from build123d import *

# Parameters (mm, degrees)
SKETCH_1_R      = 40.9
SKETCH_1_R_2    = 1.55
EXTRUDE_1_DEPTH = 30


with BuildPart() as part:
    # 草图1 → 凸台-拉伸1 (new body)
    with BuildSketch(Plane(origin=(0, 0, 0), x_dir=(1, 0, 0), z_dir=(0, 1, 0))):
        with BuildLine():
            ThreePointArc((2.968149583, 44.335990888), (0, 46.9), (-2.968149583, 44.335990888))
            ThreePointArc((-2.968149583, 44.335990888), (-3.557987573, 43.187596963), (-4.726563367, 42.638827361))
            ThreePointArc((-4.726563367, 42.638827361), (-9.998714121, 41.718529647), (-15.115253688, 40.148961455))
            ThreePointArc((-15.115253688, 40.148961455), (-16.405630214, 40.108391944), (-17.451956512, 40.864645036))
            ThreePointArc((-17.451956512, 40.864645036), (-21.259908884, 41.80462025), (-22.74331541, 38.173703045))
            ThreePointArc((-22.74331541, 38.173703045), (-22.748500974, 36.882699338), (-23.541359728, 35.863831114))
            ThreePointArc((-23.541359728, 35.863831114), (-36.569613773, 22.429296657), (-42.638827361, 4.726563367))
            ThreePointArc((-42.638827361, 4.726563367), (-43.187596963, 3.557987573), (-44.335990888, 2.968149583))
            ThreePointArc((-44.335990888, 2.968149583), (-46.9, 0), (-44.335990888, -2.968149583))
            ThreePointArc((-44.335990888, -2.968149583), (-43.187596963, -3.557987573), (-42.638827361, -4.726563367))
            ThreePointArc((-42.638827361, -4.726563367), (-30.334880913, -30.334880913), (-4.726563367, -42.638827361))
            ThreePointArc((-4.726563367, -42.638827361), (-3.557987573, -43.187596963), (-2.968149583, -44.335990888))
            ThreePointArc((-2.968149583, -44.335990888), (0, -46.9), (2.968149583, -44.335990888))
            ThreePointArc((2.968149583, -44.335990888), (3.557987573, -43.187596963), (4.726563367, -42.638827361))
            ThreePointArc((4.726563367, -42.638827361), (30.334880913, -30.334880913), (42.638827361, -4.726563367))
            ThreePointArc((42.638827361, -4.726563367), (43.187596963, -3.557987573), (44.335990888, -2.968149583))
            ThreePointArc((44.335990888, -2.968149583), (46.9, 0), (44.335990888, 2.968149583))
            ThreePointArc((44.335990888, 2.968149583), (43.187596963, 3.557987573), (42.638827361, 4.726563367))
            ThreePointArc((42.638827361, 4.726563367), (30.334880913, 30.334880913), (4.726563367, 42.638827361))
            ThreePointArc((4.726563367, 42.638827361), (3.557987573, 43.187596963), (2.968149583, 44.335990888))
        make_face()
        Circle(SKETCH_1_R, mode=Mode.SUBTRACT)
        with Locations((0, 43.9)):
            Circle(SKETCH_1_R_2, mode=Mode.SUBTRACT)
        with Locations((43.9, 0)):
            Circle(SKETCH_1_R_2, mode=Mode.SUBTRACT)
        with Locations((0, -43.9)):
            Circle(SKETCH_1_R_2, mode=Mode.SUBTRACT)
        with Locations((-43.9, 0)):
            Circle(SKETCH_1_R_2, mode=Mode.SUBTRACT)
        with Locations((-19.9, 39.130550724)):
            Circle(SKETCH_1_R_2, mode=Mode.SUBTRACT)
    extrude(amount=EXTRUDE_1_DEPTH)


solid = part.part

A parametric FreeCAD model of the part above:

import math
import FreeCAD as App
import Part
import Sketcher

doc = App.newDocument("Part")
params = doc.addObject("Spreadsheet::Sheet", "Params")
for row, (alias, value) in enumerate([
    ("sketch1_radius", "3 mm"),
    ("sketch1_radius2", "2 mm"),
    ("sketch1_diameter", "3.1 mm"),
    ("sketch1_diameter2", "81.8 mm"),
    ("sketch1_radius3", "42.9 mm"),
    ("pad1_length", "30 mm"),
], start=1):
    params.set(f"A{row}", alias)
    params.set(f"B{row}", "=" + value)
    params.setAlias(f"B{row}", alias)

body = doc.addObject("PartDesign::Body", "Body")

sketch1 = doc.addObject("Sketcher::SketchObject", "Sketch")
body.addObject(sketch1)
sketch1.AttachmentSupport = (doc.XZ_Plane, [""])
sketch1.MapMode = "FlatFace"
sketch1.addGeometry([
    Part.ArcOfCircle(Part.Circle(App.Vector(0, -43.9, 0), App.Vector(0, 0, 1), 3), math.radians(-171.643594), math.radians(-8.356406)),
    Part.ArcOfCircle(Part.Circle(App.Vector(-4.946916, -44.626651, 0), App.Vector(0, 0, 1), 2), math.radians(8.356406), math.radians(83.674521)),
    Part.ArcOfCircle(Part.Circle(App.Vector(0, 0, 0), App.Vector(0, 0, 1), 42.9), math.radians(-110.630318), math.radians(-96.325479)),
    Part.ArcOfCircle(Part.Circle(App.Vector(-15.819928, -42.020708, 0), App.Vector(0, 0, 1), 2), math.radians(69.369682), math.radians(144.687797)),
    Part.ArcOfCircle(Part.Circle(App.Vector(-19.9, -39.130551, 0), App.Vector(0, 0, 1), 3), math.radians(161.40061), math.radians(324.687797)),
    Part.ArcOfCircle(Part.Circle(App.Vector(-24.638859, -37.535805, 0), App.Vector(0, 0, 1), 2), math.radians(-18.59939), math.radians(56.718724)),
    Part.ArcOfCircle(Part.Circle(App.Vector(0, 0, 0), App.Vector(0, 0, 1), 42.9), math.radians(-173.674521), math.radians(-123.281276)),
    Part.ArcOfCircle(Part.Circle(App.Vector(-44.626651, -4.946916, 0), App.Vector(0, 0, 1), 2), math.radians(6.325479), math.radians(81.643594)),
    Part.ArcOfCircle(Part.Circle(App.Vector(-43.9, 0, 0), App.Vector(0, 0, 1), 3), math.radians(98.356406), math.radians(261.643594)),
    Part.ArcOfCircle(Part.Circle(App.Vector(-44.626651, 4.946916, 0), App.Vector(0, 0, 1), 2), math.radians(-81.643594), math.radians(-6.325479)),
    Part.ArcOfCircle(Part.Circle(App.Vector(0, 0, 0), App.Vector(0, 0, 1), 42.9), math.radians(96.325479), math.radians(173.674521)),
    Part.ArcOfCircle(Part.Circle(App.Vector(-4.946916, 44.626651, 0), App.Vector(0, 0, 1), 2), math.radians(-83.674521), math.radians(-8.356406)),
    Part.ArcOfCircle(Part.Circle(App.Vector(0, 43.9, 0), App.Vector(0, 0, 1), 3), math.radians(8.356406), math.radians(171.643594)),
    Part.ArcOfCircle(Part.Circle(App.Vector(4.946916, 44.626651, 0), App.Vector(0, 0, 1), 2), math.radians(-171.643594), math.radians(-96.325479)),
    Part.ArcOfCircle(Part.Circle(App.Vector(0, 0, 0), App.Vector(0, 0, 1), 42.9), math.radians(6.325479), math.radians(83.674521)),
    Part.ArcOfCircle(Part.Circle(App.Vector(44.626651, 4.946916, 0), App.Vector(0, 0, 1), 2), math.radians(-173.674521), math.radians(-98.356406)),
    Part.ArcOfCircle(Part.Circle(App.Vector(43.9, 0, 0), App.Vector(0, 0, 1), 3), math.radians(-81.643594), math.radians(81.643594)),
    Part.ArcOfCircle(Part.Circle(App.Vector(44.626651, -4.946916, 0), App.Vector(0, 0, 1), 2), math.radians(98.356406), math.radians(173.674521)),
    Part.ArcOfCircle(Part.Circle(App.Vector(0, 0, 0), App.Vector(0, 0, 1), 42.9), math.radians(-83.674521), math.radians(-6.325479)),
    Part.ArcOfCircle(Part.Circle(App.Vector(4.946916, -44.626651, 0), App.Vector(0, 0, 1), 2), math.radians(96.325479), math.radians(171.643594)),
    Part.Circle(App.Vector(0, 43.9, 0), App.Vector(0, 0, 1), 1.55),
    Part.Circle(App.Vector(-43.9, 0, 0), App.Vector(0, 0, 1), 1.55),
    Part.Circle(App.Vector(-19.9, -39.130551, 0), App.Vector(0, 0, 1), 1.55),
    Part.Circle(App.Vector(0, 0, 0), App.Vector(0, 0, 1), 40.9),
    Part.Circle(App.Vector(43.9, 0, 0), App.Vector(0, 0, 1), 1.55),
    Part.Circle(App.Vector(0, -43.9, 0), App.Vector(0, 0, 1), 1.55),
], False)
sketch1.addConstraint([
    Sketcher.Constraint("Tangent", 0, 1, 1, 1),
    Sketcher.Constraint("Tangent", 1, 2, 2, 2),
    Sketcher.Constraint("Tangent", 2, 1, 3, 1),
    Sketcher.Constraint("Tangent", 3, 2, 4, 2),
    Sketcher.Constraint("Tangent", 4, 1, 5, 1),
    Sketcher.Constraint("Tangent", 5, 2, 6, 2),
    Sketcher.Constraint("Tangent", 6, 1, 7, 1),
    Sketcher.Constraint("Tangent", 7, 2, 8, 2),
    Sketcher.Constraint("Tangent", 8, 1, 9, 1),
    Sketcher.Constraint("Tangent", 9, 2, 10, 2),
    Sketcher.Constraint("Tangent", 10, 1, 11, 1),
    Sketcher.Constraint("Tangent", 11, 2, 12, 2),
    Sketcher.Constraint("Tangent", 12, 1, 13, 1),
    Sketcher.Constraint("Tangent", 13, 2, 14, 2),
    Sketcher.Constraint("Tangent", 14, 1, 15, 1),
    Sketcher.Constraint("Tangent", 15, 2, 16, 2),
    Sketcher.Constraint("Tangent", 16, 1, 17, 1),
    Sketcher.Constraint("Tangent", 17, 2, 18, 2),
    Sketcher.Constraint("Tangent", 18, 1, 19, 1),
    Sketcher.Constraint("Tangent", 19, 2, 0, 2),
    Sketcher.Constraint("Coincident", 2, 3, -1, 1),
    Sketcher.Constraint("Coincident", 6, 3, -1, 1),
    Sketcher.Constraint("Coincident", 10, 3, -1, 1),
    Sketcher.Constraint("Coincident", 14, 3, -1, 1),
    Sketcher.Constraint("Coincident", 18, 3, -1, 1),
    Sketcher.Constraint("Coincident", 23, 3, -1, 1),
    Sketcher.Constraint("Coincident", 20, 3, 12, 3),
    Sketcher.Constraint("Coincident", 21, 3, 8, 3),
    Sketcher.Constraint("Coincident", 22, 3, 4, 3),
    Sketcher.Constraint("Coincident", 24, 3, 16, 3),
    Sketcher.Constraint("Coincident", 25, 3, 0, 3),
    Sketcher.Constraint("Equal", 1, 3),
    Sketcher.Constraint("Equal", 0, 4),
    Sketcher.Constraint("Equal", 3, 5),
    Sketcher.Constraint("Equal", 2, 6),
    Sketcher.Constraint("Equal", 5, 7),
    Sketcher.Constraint("Equal", 4, 8),
    Sketcher.Constraint("Equal", 7, 9),
    Sketcher.Constraint("Equal", 6, 10),
    Sketcher.Constraint("Equal", 9, 11),
    Sketcher.Constraint("Equal", 8, 12),
    Sketcher.Constraint("Equal", 11, 13),
    Sketcher.Constraint("Equal", 10, 14),
    Sketcher.Constraint("Equal", 13, 15),
    Sketcher.Constraint("Equal", 12, 16),
    Sketcher.Constraint("Equal", 15, 17),
    Sketcher.Constraint("Equal", 14, 18),
    Sketcher.Constraint("Equal", 17, 19),
    Sketcher.Constraint("Equal", 20, 21),
    Sketcher.Constraint("Equal", 21, 22),
    Sketcher.Constraint("Equal", 22, 24),
    Sketcher.Constraint("Equal", 24, 25),
    Sketcher.Constraint("Symmetric", 0, 3, 12, 3, -1, 1),
    Sketcher.Constraint("Symmetric", 8, 3, 16, 3, -1, 1),
    Sketcher.Constraint("PointOnObject", 0, 3, -2),
    Sketcher.Constraint("PointOnObject", 8, 3, -1),
    Sketcher.Constraint("Radius", 0, 3.0),
    Sketcher.Constraint("Radius", 1, 2.0),
    Sketcher.Constraint("Diameter", 20, 3.1),
    Sketcher.Constraint("Diameter", 23, 81.8),
    Sketcher.Constraint("Radius", 2, 42.9),
    Sketcher.Constraint("DistanceX", 8, 3, 4, 3, 24.0),
    Sketcher.Constraint("DistanceY", 0, 3, -1, 1, 43.9),
    Sketcher.Constraint("DistanceX", 4, 3, -1, 1, 19.9),
    Sketcher.Constraint("DistanceY", 1, 3, 4, 3, 5.496101),
])
sketch1.setExpression("Constraints[56]", "Params.sketch1_radius")
sketch1.setExpression("Constraints[57]", "Params.sketch1_radius2")
sketch1.setExpression("Constraints[58]", "Params.sketch1_diameter")
sketch1.setExpression("Constraints[59]", "Params.sketch1_diameter2")
sketch1.setExpression("Constraints[60]", "Params.sketch1_radius3")
pad1 = doc.addObject("PartDesign::Pad", "Pad")
body.addObject(pad1)
pad1.Profile = sketch1
pad1.setExpression("Length", "Params.pad1_length")
pad1.Reversed = True

doc.recompute()
